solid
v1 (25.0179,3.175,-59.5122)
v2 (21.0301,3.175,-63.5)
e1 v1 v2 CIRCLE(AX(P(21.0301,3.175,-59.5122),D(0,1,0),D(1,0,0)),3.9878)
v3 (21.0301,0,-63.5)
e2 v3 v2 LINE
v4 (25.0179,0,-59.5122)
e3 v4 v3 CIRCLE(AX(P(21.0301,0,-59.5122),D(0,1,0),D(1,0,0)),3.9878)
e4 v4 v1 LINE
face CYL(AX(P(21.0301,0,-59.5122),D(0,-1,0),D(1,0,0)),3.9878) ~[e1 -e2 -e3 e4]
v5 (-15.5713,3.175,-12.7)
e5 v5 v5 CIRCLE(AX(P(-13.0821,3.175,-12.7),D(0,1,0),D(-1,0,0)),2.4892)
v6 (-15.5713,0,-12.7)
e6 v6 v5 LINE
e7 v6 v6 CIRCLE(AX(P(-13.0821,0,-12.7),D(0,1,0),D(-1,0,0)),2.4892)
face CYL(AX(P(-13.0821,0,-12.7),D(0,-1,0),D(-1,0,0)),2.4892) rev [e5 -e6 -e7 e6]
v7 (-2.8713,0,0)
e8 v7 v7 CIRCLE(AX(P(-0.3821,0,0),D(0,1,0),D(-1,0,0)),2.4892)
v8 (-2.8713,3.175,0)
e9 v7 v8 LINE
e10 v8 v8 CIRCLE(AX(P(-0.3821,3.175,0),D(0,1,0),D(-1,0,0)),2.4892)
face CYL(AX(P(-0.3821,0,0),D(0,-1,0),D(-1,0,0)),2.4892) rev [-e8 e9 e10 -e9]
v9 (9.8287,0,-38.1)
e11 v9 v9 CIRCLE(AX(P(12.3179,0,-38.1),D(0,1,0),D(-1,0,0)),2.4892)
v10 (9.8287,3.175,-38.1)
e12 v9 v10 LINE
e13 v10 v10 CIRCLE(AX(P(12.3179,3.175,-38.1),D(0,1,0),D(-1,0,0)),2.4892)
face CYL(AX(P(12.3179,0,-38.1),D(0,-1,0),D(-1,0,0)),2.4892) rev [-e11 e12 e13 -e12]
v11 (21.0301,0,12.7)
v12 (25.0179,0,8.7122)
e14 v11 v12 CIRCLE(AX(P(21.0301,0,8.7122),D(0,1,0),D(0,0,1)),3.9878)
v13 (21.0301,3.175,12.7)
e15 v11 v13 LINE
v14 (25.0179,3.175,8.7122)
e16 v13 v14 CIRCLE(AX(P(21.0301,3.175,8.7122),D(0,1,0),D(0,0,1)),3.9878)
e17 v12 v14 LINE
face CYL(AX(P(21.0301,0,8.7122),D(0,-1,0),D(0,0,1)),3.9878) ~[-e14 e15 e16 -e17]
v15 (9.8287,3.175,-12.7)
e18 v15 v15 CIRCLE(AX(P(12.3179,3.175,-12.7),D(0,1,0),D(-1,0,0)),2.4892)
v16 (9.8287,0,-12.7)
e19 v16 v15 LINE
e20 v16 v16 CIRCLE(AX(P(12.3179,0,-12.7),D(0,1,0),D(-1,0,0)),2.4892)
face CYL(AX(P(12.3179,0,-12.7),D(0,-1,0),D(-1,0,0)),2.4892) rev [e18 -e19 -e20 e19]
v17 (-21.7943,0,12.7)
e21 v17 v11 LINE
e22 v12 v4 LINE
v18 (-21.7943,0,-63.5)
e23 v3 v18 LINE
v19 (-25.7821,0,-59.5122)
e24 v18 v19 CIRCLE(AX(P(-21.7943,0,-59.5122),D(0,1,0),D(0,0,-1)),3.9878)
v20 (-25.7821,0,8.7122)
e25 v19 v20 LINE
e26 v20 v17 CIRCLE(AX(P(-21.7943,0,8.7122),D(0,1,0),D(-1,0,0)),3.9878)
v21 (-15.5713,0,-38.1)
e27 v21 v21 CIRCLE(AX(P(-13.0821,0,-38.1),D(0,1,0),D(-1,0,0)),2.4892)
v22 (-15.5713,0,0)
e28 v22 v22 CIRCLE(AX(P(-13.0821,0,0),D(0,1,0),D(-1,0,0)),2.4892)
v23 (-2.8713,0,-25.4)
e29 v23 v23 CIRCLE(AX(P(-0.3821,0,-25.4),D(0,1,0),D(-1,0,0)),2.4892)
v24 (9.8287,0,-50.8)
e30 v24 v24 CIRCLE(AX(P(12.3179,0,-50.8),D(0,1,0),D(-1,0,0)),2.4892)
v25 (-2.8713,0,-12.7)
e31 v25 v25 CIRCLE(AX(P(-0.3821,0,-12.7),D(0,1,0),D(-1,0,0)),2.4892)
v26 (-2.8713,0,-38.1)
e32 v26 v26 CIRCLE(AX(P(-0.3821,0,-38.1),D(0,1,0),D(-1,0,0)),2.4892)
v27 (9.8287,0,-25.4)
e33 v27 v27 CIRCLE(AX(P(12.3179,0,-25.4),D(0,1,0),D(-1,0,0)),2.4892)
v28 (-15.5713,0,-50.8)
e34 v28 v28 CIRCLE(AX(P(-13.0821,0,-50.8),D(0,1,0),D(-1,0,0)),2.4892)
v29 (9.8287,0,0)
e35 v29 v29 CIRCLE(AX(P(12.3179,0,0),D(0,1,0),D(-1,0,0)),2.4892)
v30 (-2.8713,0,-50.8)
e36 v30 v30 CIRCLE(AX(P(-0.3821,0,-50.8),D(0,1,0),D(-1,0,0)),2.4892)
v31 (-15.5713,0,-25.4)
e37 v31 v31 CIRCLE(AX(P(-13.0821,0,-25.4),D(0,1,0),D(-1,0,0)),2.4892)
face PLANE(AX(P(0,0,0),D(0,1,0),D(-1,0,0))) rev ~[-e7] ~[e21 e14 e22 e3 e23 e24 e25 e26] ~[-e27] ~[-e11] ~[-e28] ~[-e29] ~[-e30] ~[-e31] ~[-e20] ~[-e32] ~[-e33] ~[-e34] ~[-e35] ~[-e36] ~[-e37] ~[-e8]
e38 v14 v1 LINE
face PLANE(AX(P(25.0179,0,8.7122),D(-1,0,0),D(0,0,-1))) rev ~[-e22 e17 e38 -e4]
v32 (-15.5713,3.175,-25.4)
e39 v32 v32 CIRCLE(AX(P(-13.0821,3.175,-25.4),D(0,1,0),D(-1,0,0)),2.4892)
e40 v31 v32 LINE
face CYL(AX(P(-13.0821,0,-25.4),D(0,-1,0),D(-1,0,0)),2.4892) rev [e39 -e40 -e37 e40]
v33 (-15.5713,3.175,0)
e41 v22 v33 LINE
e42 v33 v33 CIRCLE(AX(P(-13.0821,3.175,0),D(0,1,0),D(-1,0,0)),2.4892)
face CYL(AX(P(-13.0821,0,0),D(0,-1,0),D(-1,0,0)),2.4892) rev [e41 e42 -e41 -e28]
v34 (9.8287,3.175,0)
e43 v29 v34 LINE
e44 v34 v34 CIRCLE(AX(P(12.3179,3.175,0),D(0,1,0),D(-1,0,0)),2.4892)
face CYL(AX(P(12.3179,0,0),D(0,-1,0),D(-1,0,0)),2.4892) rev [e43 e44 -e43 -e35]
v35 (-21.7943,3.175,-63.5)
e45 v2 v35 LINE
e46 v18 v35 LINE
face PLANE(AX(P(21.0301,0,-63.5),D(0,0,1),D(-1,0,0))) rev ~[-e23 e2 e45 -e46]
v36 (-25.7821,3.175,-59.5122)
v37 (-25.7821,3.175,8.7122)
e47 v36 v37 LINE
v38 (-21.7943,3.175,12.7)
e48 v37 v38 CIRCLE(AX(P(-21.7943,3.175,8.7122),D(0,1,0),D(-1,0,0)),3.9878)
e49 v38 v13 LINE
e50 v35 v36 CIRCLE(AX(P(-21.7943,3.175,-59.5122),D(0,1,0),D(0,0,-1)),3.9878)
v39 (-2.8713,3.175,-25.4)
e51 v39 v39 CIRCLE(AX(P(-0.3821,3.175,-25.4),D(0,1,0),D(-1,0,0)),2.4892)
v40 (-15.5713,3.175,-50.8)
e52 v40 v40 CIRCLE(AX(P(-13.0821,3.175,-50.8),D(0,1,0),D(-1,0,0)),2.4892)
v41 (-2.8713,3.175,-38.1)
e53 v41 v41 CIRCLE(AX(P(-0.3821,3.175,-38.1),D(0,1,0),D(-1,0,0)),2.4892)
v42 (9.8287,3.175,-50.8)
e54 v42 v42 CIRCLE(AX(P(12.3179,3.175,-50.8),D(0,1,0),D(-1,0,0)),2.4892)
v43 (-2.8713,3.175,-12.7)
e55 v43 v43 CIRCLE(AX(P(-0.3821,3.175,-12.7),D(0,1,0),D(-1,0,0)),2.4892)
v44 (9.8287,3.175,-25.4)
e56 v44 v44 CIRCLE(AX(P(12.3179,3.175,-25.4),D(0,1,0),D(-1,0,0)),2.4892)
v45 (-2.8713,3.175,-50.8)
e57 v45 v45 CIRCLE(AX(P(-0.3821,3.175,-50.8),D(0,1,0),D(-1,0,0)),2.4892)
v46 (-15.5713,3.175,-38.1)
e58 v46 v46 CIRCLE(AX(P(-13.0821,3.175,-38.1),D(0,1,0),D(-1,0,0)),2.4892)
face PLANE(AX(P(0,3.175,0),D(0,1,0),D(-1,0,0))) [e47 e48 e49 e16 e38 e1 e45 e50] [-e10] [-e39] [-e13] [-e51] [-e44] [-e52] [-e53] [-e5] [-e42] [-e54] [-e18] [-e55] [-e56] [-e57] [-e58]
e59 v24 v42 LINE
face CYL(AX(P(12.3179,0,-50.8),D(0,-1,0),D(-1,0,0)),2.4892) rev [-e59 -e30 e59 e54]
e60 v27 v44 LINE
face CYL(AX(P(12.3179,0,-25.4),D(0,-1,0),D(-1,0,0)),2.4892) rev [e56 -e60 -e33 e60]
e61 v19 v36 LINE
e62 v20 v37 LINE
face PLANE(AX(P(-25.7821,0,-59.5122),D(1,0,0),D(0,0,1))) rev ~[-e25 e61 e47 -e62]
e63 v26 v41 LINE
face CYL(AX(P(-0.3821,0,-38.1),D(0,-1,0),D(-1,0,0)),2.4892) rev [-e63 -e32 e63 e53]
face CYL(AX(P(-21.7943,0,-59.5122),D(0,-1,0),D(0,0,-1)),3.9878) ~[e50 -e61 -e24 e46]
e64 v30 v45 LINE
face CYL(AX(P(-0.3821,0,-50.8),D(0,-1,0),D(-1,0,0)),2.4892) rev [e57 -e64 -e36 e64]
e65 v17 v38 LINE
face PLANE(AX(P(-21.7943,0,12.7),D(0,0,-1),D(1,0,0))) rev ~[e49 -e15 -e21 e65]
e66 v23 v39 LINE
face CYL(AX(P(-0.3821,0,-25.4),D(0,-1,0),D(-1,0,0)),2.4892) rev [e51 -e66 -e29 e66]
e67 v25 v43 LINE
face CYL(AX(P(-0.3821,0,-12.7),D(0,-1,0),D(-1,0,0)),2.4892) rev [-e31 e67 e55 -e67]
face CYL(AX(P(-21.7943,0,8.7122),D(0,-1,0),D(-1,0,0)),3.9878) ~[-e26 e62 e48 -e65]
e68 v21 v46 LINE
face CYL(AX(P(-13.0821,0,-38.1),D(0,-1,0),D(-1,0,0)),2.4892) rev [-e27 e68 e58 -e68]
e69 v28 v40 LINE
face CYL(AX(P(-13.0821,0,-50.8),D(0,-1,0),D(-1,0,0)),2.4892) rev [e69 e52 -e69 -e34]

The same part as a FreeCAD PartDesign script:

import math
import FreeCAD as App
import Part
import Sketcher

V = App.Vector
Q = App.Units.Quantity

doc = App.newDocument("Part")
body = doc.addObject("PartDesign::Body", "Body")

# Sketch on XZ plane
sketch1 = body.newObject("Sketcher::SketchObject", "Sketch")
sketch1.AttachmentSupport = (doc.getObject("XZ_Plane"), [""])
sketch1.MapMode = "FlatFace"
sketch1.addGeometry([
    Part.ArcOfCircle(Part.Circle(V(-21.8, 8.7, 0), V(0, 0, 1), 4), math.radians(90), math.radians(180)),  # 0
    Part.LineSegment(V(-21.8, 12.7, 0), V(21, 12.7, 0)),  # 1
    Part.ArcOfCircle(Part.Circle(V(21, 8.7, 0), V(0, 0, 1), 4), math.radians(0), math.radians(90)),  # 2
    Part.LineSegment(V(25, 8.7, 0), V(25, -59.5, 0)),  # 3
    Part.ArcOfCircle(Part.Circle(V(21, -59.5, 0), V(0, 0, 1), 4), math.radians(-90), math.radians(0)),  # 4
    Part.LineSegment(V(21, -63.5, 0), V(-21.8, -63.5, 0)),  # 5
    Part.ArcOfCircle(Part.Circle(V(-21.8, -59.5, 0), V(0, 0, 1), 4), math.radians(180), math.radians(270)),  # 6
    Part.LineSegment(V(-25.8, -59.5, 0), V(-25.8, 8.7, 0)),  # 7
    Part.Circle(V(12.3, -50.8, 0), V(0, 0, 1), 2.5),  # 8
    Part.Circle(V(12.3, -38.1, 0), V(0, 0, 1), 2.5),  # 9
    Part.Circle(V(-0.4, -50.8, 0), V(0, 0, 1), 2.5),  # 10
    Part.Circle(V(-13.1, -50.8, 0), V(0, 0, 1), 2.5),  # 11
    Part.Circle(V(-0.4, -38.1, 0), V(0, 0, 1), 2.5),  # 12
    Part.Circle(V(-13.1, -38.1, 0), V(0, 0, 1), 2.5),  # 13
    Part.Circle(V(12.3, -25.4, 0), V(0, 0, 1), 2.5),  # 14
    Part.Circle(V(12.3, -12.7, 0), V(0, 0, 1), 2.5),  # 15
    Part.Circle(V(12.3, 0, 0), V(0, 0, 1), 2.5),  # 16
    Part.Circle(V(-0.4, -25.4, 0), V(0, 0, 1), 2.5),  # 17
    Part.Circle(V(-0.4, -12.7, 0), V(0, 0, 1), 2.5),  # 18
    Part.Circle(V(-13.1, -25.4, 0), V(0, 0, 1), 2.5),  # 19
    Part.Circle(V(-13.1, -12.7, 0), V(0, 0, 1), 2.5),  # 20
    Part.Circle(V(-0.4, 0, 0), V(0, 0, 1), 2.5),  # 21
    Part.Circle(V(-13.1, 0, 0), V(0, 0, 1), 2.5),  # 22
], False)
sketch1.addConstraint([
    Sketcher.Constraint("Tangent", 0, 1, 1, 1),
    Sketcher.Constraint("Tangent", 1, 2, 2, 2),
    Sketcher.Constraint("Tangent", 2, 1, 3, 1),
    Sketcher.Constraint("Tangent", 3, 2, 4, 2),
    Sketcher.Constraint("Tangent", 4, 1, 5, 1),
    Sketcher.Constraint("Tangent", 5, 2, 6, 2),
    Sketcher.Constraint("Tangent", 6, 1, 7, 1),
    Sketcher.Constraint("Tangent", 7, 2, 0, 2),
    Sketcher.Constraint("Horizontal", 1),
    Sketcher.Constraint("Vertical", 3),
    Sketcher.Constraint("Horizontal", 5),
    Sketcher.Constraint("Vertical", 7),
    Sketcher.Constraint("Equal", 0, 2),
    Sketcher.Constraint("Equal", 2, 4),
    Sketcher.Constraint("Equal", 4, 6),
    Sketcher.Constraint("Equal", 8, 9),
    Sketcher.Constraint("Equal", 9, 10),
    Sketcher.Constraint("Equal", 10, 11),
    Sketcher.Constraint("Equal", 11, 12),
    Sketcher.Constraint("Equal", 12, 13),
    Sketcher.Constraint("Equal", 13, 14),
    Sketcher.Constraint("Equal", 14, 15),
    Sketcher.Constraint("Equal", 15, 16),
    Sketcher.Constraint("Equal", 16, 17),
    Sketcher.Constraint("Equal", 17, 18),
    Sketcher.Constraint("Equal", 18, 19),
    Sketcher.Constraint("Equal", 19, 20),
    Sketcher.Constraint("Equal", 20, 21),
    Sketcher.Constraint("Equal", 21, 22),
    Sketcher.Constraint("PointOnObject", 16, 3, -1),
    Sketcher.Constraint("PointOnObject", 21, 3, -1),
    Sketcher.Constraint("PointOnObject", 22, 3, -1),
    Sketcher.Constraint("Horizontal", 8, 3, 10, 3),
    Sketcher.Constraint("Horizontal", 10, 3, 11, 3),
    Sketcher.Constraint("Horizontal", 9, 3, 12, 3),
    Sketcher.Constraint("Horizontal", 12, 3, 13, 3),
    Sketcher.Constraint("Horizontal", 14, 3, 17, 3),
    Sketcher.Constraint("Horizontal", 15, 3, 18, 3),
    Sketcher.Constraint("Horizontal", 17, 3, 19, 3),
    Sketcher.Constraint("Horizontal", 18, 3, 20, 3),
    Sketcher.Constraint("Vertical", 8, 3, 9, 3),
    Sketcher.Constraint("Vertical", 10, 3, 12, 3),
    Sketcher.Constraint("Vertical", 11, 3, 13, 3),
    Sketcher.Constraint("Vertical", 9, 3, 14, 3),
    Sketcher.Constraint("Vertical", 14, 3, 15, 3),
    Sketcher.Constraint("Vertical", 15, 3, 16, 3),
    Sketcher.Constraint("Vertical", 12, 3, 17, 3),
    Sketcher.Constraint("Vertical", 17, 3, 18, 3),
    Sketcher.Constraint("Vertical", 13, 3, 19, 3),
    Sketcher.Constraint("Vertical", 19, 3, 20, 3),
    Sketcher.Constraint("Vertical", 18, 3, 21, 3),
    Sketcher.Constraint("Vertical", 20, 3, 22, 3),
    Sketcher.Constraint("Diameter", 8, Q("0.196 in")),
    Sketcher.Constraint("DistanceY", 8, 3, -1, 1, Q("2 in")),
    Sketcher.Constraint("Radius", 0, Q("0.157 in")),
    Sketcher.Constraint("DistanceY", 15, 3, -1, 1, Q("0.5 in")),
    Sketcher.Constraint("DistanceY", -1, 1, 0, 1, Q("0.5 in")),
    Sketcher.Constraint("DistanceY", 8, 3, 9, 3, Q("0.5 in")),
    Sketcher.Constraint("DistanceX", 10, 3, 8, 3, Q("0.5 in")),
    Sketcher.Constraint("DistanceX", 11, 3, 10, 3, Q("0.5 in")),
    Sketcher.Constraint("DistanceY", 9, 3, 14, 3, Q("0.5 in")),
    Sketcher.Constraint("DistanceX", 16, 3, 2, 1, Q("0.5 in")),
    Sketcher.Constraint("DistanceY", 4, 1, 8, 3, Q("0.5 in")),
    Sketcher.Constraint("DistanceX", 6, 1, 11, 3, Q("0.5 in")),
    Sketcher.Constraint("DistanceX", 0, 3, -1, 1, Q("21.7943 mm")),
])
pad1 = body.newObject("PartDesign::Pad", "Pad")
pad1.Profile = sketch1
pad1.Length = Q("0.125 in")
pad1.Reversed = True

doc.recompute()
